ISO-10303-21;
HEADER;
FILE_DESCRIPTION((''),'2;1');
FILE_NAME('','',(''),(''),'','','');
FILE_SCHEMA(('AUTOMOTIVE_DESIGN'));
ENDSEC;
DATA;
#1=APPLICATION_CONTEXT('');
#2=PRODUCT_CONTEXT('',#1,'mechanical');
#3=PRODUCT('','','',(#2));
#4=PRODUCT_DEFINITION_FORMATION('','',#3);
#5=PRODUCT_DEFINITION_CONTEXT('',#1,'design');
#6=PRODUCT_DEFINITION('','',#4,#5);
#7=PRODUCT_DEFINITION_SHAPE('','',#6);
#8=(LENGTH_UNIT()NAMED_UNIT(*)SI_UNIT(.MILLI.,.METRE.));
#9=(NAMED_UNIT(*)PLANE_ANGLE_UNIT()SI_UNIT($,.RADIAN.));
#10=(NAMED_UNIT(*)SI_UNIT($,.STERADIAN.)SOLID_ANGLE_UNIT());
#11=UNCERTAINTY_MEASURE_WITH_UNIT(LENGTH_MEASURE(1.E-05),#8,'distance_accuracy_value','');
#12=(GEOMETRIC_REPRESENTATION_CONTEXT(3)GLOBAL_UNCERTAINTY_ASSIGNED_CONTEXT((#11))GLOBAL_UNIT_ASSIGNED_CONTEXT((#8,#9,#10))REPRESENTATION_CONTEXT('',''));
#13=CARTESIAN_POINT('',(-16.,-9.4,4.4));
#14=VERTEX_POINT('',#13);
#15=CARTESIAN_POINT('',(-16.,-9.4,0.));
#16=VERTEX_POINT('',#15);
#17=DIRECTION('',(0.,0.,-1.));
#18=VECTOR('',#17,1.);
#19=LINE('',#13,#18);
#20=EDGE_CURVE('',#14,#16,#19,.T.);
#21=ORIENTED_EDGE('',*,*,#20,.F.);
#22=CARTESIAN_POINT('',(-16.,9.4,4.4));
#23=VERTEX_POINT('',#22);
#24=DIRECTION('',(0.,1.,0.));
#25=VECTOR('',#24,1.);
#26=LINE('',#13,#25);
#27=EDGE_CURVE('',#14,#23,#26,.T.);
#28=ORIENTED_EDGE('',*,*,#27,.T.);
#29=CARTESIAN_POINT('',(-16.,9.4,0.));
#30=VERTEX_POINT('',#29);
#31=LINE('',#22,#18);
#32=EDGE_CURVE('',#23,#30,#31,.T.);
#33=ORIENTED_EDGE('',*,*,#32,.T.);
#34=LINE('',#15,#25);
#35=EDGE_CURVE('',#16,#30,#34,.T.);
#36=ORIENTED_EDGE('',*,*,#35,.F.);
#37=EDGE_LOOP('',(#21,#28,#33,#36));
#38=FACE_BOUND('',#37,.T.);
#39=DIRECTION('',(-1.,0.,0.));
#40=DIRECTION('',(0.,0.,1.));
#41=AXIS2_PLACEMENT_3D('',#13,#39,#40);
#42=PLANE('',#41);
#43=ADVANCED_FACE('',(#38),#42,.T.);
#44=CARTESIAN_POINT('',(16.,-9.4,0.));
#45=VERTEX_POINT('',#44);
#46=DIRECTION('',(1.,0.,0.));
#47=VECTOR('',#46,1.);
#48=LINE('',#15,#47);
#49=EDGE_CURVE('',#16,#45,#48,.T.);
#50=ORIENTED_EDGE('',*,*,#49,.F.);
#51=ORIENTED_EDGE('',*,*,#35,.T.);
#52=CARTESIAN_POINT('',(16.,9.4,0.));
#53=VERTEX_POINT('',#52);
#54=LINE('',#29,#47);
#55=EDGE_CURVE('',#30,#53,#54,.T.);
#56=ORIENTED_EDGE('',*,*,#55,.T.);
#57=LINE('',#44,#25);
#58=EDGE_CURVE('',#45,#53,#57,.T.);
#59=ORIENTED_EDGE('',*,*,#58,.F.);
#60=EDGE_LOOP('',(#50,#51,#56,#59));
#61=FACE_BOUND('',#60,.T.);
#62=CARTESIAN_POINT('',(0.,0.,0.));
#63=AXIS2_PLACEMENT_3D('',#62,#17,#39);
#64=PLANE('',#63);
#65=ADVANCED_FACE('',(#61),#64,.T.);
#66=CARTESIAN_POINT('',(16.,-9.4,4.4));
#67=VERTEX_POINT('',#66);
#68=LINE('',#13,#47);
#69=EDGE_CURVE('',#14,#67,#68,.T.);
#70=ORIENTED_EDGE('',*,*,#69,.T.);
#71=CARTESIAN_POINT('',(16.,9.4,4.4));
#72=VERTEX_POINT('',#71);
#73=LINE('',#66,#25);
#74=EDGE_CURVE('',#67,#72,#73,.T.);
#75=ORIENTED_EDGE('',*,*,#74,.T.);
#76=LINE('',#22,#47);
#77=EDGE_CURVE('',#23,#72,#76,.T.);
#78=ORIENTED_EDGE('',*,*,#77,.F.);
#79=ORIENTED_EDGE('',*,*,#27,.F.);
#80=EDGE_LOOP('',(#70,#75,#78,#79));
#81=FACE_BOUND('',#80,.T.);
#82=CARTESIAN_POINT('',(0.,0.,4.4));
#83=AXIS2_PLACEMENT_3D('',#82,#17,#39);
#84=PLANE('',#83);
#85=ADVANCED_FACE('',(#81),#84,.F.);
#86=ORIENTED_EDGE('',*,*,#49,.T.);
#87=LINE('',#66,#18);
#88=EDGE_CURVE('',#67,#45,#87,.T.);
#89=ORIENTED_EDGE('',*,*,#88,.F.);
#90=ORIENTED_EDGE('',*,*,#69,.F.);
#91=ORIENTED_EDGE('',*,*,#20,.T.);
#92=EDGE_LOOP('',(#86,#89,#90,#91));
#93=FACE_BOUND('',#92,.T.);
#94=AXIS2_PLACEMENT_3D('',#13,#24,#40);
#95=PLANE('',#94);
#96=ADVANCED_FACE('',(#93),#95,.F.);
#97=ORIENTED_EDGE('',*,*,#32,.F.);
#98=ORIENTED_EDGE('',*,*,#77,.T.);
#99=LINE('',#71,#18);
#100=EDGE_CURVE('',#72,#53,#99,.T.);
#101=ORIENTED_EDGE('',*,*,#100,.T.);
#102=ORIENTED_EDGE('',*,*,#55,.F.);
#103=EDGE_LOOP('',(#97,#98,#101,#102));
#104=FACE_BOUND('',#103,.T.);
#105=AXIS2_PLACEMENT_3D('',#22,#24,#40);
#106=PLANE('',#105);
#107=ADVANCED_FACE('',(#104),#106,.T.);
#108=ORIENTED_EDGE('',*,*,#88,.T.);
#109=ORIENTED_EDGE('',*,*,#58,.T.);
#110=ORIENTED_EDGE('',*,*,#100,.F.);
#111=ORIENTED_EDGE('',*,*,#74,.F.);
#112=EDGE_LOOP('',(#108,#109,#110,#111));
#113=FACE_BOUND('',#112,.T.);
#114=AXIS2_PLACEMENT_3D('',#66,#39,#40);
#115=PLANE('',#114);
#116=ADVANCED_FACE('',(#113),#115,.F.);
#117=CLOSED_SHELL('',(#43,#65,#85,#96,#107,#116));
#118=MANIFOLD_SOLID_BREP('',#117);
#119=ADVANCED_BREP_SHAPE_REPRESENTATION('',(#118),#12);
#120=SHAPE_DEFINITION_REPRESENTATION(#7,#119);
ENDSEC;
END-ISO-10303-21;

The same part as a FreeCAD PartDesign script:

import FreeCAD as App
import Part
import Sketcher
from FreeCAD import Vector

doc = App.newDocument("Part")
body = doc.addObject("PartDesign::Body", "Body")

sketch1 = body.newObject("Sketcher::SketchObject", "Sketch")
sketch1.AttachmentSupport = (doc.getObject("XY_Plane"), [""])
sketch1.MapMode = "FlatFace"
sketch1.addGeometry(Part.LineSegment(Vector(-16, 9, 0), Vector(-16, -9, 0)), False)
sketch1.addGeometry(Part.LineSegment(Vector(-16, -9, 0), Vector(16, -9, 0)), False)
sketch1.addGeometry(Part.LineSegment(Vector(16, -9, 0), Vector(16, 9, 0)), False)
sketch1.addGeometry(Part.LineSegment(Vector(16, 9, 0), Vector(-16, 9, 0)), False)
sketch1.addConstraint(Sketcher.Constraint("Coincident", 0, 2, 1, 1))
sketch1.addConstraint(Sketcher.Constraint("Coincident", 1, 2, 2, 1))
sketch1.addConstraint(Sketcher.Constraint("Coincident", 2, 2, 3, 1))
sketch1.addConstraint(Sketcher.Constraint("Coincident", 3, 2, 0, 1))
sketch1.addConstraint(Sketcher.Constraint("Vertical", 0))
sketch1.addConstraint(Sketcher.Constraint("Horizontal", 1))
sketch1.addConstraint(Sketcher.Constraint("Vertical", 2))
sketch1.addConstraint(Sketcher.Constraint("Horizontal", 3))
sketch1.addConstraint(Sketcher.Constraint("Symmetric", 0, 2, 2, 2, -1, 1))
sketch1.addConstraint(Sketcher.Constraint("DistanceX", 1, 1, 1, 2, 32.0))
sketch1.addConstraint(Sketcher.Constraint("DistanceY", 0, 2, 0, 1, 18.8))
pad1 = body.newObject("PartDesign::Pad", "Pad")
pad1.Profile = sketch1
pad1.Length = 4.4

doc.recompute()
